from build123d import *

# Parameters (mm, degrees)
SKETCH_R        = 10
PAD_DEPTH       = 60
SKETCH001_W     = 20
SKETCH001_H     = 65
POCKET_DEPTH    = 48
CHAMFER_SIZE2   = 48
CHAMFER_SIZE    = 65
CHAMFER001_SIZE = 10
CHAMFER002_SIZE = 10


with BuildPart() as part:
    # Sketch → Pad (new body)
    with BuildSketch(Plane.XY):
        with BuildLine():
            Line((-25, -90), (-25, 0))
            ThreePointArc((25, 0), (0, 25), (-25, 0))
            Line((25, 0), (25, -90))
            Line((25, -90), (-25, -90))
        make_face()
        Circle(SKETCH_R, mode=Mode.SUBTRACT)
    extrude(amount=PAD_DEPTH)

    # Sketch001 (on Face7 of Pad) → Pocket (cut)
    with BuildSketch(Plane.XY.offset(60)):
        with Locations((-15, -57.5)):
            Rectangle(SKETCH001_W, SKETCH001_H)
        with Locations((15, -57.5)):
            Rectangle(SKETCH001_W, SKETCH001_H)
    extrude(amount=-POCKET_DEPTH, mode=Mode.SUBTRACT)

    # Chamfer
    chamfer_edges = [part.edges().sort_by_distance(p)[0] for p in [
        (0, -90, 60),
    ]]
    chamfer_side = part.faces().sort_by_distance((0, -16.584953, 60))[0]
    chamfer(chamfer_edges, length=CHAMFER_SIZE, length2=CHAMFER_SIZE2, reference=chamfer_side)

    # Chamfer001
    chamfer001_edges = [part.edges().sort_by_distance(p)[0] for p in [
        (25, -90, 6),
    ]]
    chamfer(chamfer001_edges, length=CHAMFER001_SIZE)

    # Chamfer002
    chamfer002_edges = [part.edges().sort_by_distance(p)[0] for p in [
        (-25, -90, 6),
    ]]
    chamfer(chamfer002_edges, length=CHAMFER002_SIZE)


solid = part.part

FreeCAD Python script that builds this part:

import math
import FreeCAD as App
import Part
import Sketcher
from FreeCAD import Vector


def edges_at(feature, points):
    """Names of the edges that pass closest to the given points."""
    edges = feature.Shape.Edges
    near = lambda p: min(range(len(edges)), key=lambda i: edges[i].distToShape(Part.Vertex(*p))[0])
    return sorted({f"Edge{near(p) + 1}" for p in points})

doc = App.newDocument("Part")
params = doc.addObject("Spreadsheet::Sheet", "Params")
for row, (alias, value) in enumerate([
    ("sketch1_diameter", "20 mm"),
    ("sketch1_radius", "25 mm"),
    ("sketch1_height", "90 mm"),
    ("pad1_length", "60 mm"),
    ("sketch2_width", "20 mm"),
    ("sketch2_height", "65 mm"),
    ("pocket1_length", "48 mm"),
    ("chamfer_size", "65 mm"),
    ("chamfer_size2", "48 mm"),
    ("chamfer2_size", "10 mm"),
    ("chamfer3_size", "10 mm"),
], start=1):
    params.set(f"A{row}", alias)
    params.set(f"B{row}", "=" + value)
    params.setAlias(f"B{row}", alias)

body = doc.addObject("PartDesign::Body", "Body")

sketch1 = doc.addObject("Sketcher::SketchObject", "Sketch")
body.addObject(sketch1)
sketch1.AttachmentSupport = (doc.XY_Plane, [""])
sketch1.MapMode = "FlatFace"
sketch1.addGeometry(Part.LineSegment(Vector(-25, 0, 0), Vector(-25, -90, 0)), False)
sketch1.addGeometry(Part.LineSegment(Vector(-25, -90, 0), Vector(25, -90, 0)), False)
sketch1.addGeometry(Part.LineSegment(Vector(25, -90, 0), Vector(25, 0, 0)), False)
sketch1.addGeometry(Part.ArcOfCircle(Part.Circle(Vector(0, 0, 0), Vector(0, 0, 1), 25), math.radians(0), math.radians(180)), False)
sketch1.addGeometry(Part.Circle(Vector(0, 0, 0), Vector(0, 0, 1), 10), False)
sketch1.addConstraint(Sketcher.Constraint("Coincident", 0, 2, 1, 1))
sketch1.addConstraint(Sketcher.Constraint("Coincident", 1, 2, 2, 1))
sketch1.addConstraint(Sketcher.Constraint("Tangent", 2, 2, 3, 1))
sketch1.addConstraint(Sketcher.Constraint("Tangent", 3, 2, 0, 1))
sketch1.addConstraint(Sketcher.Constraint("Vertical", 0))
sketch1.addConstraint(Sketcher.Constraint("Horizontal", 1))
sketch1.addConstraint(Sketcher.Constraint("Vertical", 2))
sketch1.addConstraint(Sketcher.Constraint("Coincident", 3, 3, -1, 1))
sketch1.addConstraint(Sketcher.Constraint("Coincident", 4, 3, -1, 1))
sketch1.addConstraint(Sketcher.Constraint("Diameter", 4, 20.0))
sketch1.addConstraint(Sketcher.Constraint("Radius", 3, 25.0))
sketch1.addConstraint(Sketcher.Constraint("DistanceY", 0, 2, 0, 1, 90.0))
sketch1.setExpression("Constraints[9]", "Params.sketch1_diameter")
sketch1.setExpression("Constraints[10]", "Params.sketch1_radius")
sketch1.setExpression("Constraints[11]", "Params.sketch1_height")
pad1 = doc.addObject("PartDesign::Pad", "Pad")
body.addObject(pad1)
pad1.Profile = sketch1
pad1.setExpression("Length", "Params.pad1_length")

sketch2 = doc.addObject("Sketcher::SketchObject", "Sketch001")
body.addObject(sketch2)
sketch2.AttachmentSupport = (doc.XY_Plane, [""])
sketch2.MapMode = "FlatFace"
sketch2.AttachmentOffset = App.Placement(Vector(0, 0, 60), App.Rotation())
sketch2.addGeometry(Part.LineSegment(Vector(-25, -25, 0), Vector(-25, -90, 0)), False)
sketch2.addGeometry(Part.LineSegment(Vector(-25, -90, 0), Vector(-5, -90, 0)), False)
sketch2.addGeometry(Part.LineSegment(Vector(-5, -90, 0), Vector(-5, -25, 0)), False)
sketch2.addGeometry(Part.LineSegment(Vector(-5, -25, 0), Vector(-25, -25, 0)), False)
sketch2.addGeometry(Part.LineSegment(Vector(5, -25, 0), Vector(5, -90, 0)), False)
sketch2.addGeometry(Part.LineSegment(Vector(5, -90, 0), Vector(25, -90, 0)), False)
sketch2.addGeometry(Part.LineSegment(Vector(25, -90, 0), Vector(25, -25, 0)), False)
sketch2.addGeometry(Part.LineSegment(Vector(25, -25, 0), Vector(5, -25, 0)), False)
sketch2.addConstraint(Sketcher.Constraint("Coincident", 0, 2, 1, 1))
sketch2.addConstraint(Sketcher.Constraint("Coincident", 1, 2, 2, 1))
sketch2.addConstraint(Sketcher.Constraint("Coincident", 2, 2, 3, 1))
sketch2.addConstraint(Sketcher.Constraint("Coincident", 3, 2, 0, 1))
sketch2.addConstraint(Sketcher.Constraint("Coincident", 4, 2, 5, 1))
sketch2.addConstraint(Sketcher.Constraint("Coincident", 5, 2, 6, 1))
sketch2.addConstraint(Sketcher.Constraint("Coincident", 6, 2, 7, 1))
sketch2.addConstraint(Sketcher.Constraint("Coincident", 7, 2, 4, 1))
sketch2.addConstraint(Sketcher.Constraint("Vertical", 0))
sketch2.addConstraint(Sketcher.Constraint("Horizontal", 1))
sketch2.addConstraint(Sketcher.Constraint("Vertical", 2))
sketch2.addConstraint(Sketcher.Constraint("Horizontal", 3))
sketch2.addConstraint(Sketcher.Constraint("Vertical", 4))
sketch2.addConstraint(Sketcher.Constraint("Horizontal", 5))
sketch2.addConstraint(Sketcher.Constraint("Vertical", 6))
sketch2.addConstraint(Sketcher.Constraint("Horizontal", 7))
sketch2.addConstraint(Sketcher.Constraint("Symmetric", 1, 2, 4, 2, -2))
sketch2.addConstraint(Sketcher.Constraint("Symmetric", 3, 2, 6, 2, -2))
sketch2.addConstraint(Sketcher.Constraint("DistanceX", 1, 1, 1, 2, 20.0))
sketch2.addConstraint(Sketcher.Constraint("DistanceY", 0, 2, 0, 1, 65.0))
sketch2.addConstraint(Sketcher.Constraint("DistanceX", 0, 2, -1, 1, 25.0))
sketch2.addConstraint(Sketcher.Constraint("DistanceY", 0, 2, -1, 1, 90.0))
sketch2.setExpression("Constraints[18]", "Params.sketch2_width")
sketch2.setExpression("Constraints[19]", "Params.sketch2_height")
pocket1 = doc.addObject("PartDesign::Pocket", "Pocket")
body.addObject(pocket1)
pocket1.Profile = sketch2
pocket1.setExpression("Length", "Params.pocket1_length")
doc.recompute()

chamfer = doc.addObject("PartDesign::Chamfer", "Chamfer")
body.addObject(chamfer)
chamfer.Base = (pocket1, edges_at(pocket1, [(0, -90, 60)]))
chamfer.ChamferType = "Two distances"
chamfer.setExpression("Size", "Params.chamfer_size")
chamfer.setExpression("Size2", "Params.chamfer_size2")
chamfer.FlipDirection = True
doc.recompute()

chamfer2 = doc.addObject("PartDesign::Chamfer", "Chamfer001")
body.addObject(chamfer2)
chamfer2.Base = (chamfer, edges_at(chamfer, [(25, -90, 6)]))
chamfer2.setExpression("Size", "Params.chamfer2_size")
doc.recompute()

chamfer3 = doc.addObject("PartDesign::Chamfer", "Chamfer002")
body.addObject(chamfer3)
chamfer3.Base = (chamfer2, edges_at(chamfer2, [(-25, -90, 6)]))
chamfer3.setExpression("Size", "Params.chamfer3_size")

doc.recompute()
